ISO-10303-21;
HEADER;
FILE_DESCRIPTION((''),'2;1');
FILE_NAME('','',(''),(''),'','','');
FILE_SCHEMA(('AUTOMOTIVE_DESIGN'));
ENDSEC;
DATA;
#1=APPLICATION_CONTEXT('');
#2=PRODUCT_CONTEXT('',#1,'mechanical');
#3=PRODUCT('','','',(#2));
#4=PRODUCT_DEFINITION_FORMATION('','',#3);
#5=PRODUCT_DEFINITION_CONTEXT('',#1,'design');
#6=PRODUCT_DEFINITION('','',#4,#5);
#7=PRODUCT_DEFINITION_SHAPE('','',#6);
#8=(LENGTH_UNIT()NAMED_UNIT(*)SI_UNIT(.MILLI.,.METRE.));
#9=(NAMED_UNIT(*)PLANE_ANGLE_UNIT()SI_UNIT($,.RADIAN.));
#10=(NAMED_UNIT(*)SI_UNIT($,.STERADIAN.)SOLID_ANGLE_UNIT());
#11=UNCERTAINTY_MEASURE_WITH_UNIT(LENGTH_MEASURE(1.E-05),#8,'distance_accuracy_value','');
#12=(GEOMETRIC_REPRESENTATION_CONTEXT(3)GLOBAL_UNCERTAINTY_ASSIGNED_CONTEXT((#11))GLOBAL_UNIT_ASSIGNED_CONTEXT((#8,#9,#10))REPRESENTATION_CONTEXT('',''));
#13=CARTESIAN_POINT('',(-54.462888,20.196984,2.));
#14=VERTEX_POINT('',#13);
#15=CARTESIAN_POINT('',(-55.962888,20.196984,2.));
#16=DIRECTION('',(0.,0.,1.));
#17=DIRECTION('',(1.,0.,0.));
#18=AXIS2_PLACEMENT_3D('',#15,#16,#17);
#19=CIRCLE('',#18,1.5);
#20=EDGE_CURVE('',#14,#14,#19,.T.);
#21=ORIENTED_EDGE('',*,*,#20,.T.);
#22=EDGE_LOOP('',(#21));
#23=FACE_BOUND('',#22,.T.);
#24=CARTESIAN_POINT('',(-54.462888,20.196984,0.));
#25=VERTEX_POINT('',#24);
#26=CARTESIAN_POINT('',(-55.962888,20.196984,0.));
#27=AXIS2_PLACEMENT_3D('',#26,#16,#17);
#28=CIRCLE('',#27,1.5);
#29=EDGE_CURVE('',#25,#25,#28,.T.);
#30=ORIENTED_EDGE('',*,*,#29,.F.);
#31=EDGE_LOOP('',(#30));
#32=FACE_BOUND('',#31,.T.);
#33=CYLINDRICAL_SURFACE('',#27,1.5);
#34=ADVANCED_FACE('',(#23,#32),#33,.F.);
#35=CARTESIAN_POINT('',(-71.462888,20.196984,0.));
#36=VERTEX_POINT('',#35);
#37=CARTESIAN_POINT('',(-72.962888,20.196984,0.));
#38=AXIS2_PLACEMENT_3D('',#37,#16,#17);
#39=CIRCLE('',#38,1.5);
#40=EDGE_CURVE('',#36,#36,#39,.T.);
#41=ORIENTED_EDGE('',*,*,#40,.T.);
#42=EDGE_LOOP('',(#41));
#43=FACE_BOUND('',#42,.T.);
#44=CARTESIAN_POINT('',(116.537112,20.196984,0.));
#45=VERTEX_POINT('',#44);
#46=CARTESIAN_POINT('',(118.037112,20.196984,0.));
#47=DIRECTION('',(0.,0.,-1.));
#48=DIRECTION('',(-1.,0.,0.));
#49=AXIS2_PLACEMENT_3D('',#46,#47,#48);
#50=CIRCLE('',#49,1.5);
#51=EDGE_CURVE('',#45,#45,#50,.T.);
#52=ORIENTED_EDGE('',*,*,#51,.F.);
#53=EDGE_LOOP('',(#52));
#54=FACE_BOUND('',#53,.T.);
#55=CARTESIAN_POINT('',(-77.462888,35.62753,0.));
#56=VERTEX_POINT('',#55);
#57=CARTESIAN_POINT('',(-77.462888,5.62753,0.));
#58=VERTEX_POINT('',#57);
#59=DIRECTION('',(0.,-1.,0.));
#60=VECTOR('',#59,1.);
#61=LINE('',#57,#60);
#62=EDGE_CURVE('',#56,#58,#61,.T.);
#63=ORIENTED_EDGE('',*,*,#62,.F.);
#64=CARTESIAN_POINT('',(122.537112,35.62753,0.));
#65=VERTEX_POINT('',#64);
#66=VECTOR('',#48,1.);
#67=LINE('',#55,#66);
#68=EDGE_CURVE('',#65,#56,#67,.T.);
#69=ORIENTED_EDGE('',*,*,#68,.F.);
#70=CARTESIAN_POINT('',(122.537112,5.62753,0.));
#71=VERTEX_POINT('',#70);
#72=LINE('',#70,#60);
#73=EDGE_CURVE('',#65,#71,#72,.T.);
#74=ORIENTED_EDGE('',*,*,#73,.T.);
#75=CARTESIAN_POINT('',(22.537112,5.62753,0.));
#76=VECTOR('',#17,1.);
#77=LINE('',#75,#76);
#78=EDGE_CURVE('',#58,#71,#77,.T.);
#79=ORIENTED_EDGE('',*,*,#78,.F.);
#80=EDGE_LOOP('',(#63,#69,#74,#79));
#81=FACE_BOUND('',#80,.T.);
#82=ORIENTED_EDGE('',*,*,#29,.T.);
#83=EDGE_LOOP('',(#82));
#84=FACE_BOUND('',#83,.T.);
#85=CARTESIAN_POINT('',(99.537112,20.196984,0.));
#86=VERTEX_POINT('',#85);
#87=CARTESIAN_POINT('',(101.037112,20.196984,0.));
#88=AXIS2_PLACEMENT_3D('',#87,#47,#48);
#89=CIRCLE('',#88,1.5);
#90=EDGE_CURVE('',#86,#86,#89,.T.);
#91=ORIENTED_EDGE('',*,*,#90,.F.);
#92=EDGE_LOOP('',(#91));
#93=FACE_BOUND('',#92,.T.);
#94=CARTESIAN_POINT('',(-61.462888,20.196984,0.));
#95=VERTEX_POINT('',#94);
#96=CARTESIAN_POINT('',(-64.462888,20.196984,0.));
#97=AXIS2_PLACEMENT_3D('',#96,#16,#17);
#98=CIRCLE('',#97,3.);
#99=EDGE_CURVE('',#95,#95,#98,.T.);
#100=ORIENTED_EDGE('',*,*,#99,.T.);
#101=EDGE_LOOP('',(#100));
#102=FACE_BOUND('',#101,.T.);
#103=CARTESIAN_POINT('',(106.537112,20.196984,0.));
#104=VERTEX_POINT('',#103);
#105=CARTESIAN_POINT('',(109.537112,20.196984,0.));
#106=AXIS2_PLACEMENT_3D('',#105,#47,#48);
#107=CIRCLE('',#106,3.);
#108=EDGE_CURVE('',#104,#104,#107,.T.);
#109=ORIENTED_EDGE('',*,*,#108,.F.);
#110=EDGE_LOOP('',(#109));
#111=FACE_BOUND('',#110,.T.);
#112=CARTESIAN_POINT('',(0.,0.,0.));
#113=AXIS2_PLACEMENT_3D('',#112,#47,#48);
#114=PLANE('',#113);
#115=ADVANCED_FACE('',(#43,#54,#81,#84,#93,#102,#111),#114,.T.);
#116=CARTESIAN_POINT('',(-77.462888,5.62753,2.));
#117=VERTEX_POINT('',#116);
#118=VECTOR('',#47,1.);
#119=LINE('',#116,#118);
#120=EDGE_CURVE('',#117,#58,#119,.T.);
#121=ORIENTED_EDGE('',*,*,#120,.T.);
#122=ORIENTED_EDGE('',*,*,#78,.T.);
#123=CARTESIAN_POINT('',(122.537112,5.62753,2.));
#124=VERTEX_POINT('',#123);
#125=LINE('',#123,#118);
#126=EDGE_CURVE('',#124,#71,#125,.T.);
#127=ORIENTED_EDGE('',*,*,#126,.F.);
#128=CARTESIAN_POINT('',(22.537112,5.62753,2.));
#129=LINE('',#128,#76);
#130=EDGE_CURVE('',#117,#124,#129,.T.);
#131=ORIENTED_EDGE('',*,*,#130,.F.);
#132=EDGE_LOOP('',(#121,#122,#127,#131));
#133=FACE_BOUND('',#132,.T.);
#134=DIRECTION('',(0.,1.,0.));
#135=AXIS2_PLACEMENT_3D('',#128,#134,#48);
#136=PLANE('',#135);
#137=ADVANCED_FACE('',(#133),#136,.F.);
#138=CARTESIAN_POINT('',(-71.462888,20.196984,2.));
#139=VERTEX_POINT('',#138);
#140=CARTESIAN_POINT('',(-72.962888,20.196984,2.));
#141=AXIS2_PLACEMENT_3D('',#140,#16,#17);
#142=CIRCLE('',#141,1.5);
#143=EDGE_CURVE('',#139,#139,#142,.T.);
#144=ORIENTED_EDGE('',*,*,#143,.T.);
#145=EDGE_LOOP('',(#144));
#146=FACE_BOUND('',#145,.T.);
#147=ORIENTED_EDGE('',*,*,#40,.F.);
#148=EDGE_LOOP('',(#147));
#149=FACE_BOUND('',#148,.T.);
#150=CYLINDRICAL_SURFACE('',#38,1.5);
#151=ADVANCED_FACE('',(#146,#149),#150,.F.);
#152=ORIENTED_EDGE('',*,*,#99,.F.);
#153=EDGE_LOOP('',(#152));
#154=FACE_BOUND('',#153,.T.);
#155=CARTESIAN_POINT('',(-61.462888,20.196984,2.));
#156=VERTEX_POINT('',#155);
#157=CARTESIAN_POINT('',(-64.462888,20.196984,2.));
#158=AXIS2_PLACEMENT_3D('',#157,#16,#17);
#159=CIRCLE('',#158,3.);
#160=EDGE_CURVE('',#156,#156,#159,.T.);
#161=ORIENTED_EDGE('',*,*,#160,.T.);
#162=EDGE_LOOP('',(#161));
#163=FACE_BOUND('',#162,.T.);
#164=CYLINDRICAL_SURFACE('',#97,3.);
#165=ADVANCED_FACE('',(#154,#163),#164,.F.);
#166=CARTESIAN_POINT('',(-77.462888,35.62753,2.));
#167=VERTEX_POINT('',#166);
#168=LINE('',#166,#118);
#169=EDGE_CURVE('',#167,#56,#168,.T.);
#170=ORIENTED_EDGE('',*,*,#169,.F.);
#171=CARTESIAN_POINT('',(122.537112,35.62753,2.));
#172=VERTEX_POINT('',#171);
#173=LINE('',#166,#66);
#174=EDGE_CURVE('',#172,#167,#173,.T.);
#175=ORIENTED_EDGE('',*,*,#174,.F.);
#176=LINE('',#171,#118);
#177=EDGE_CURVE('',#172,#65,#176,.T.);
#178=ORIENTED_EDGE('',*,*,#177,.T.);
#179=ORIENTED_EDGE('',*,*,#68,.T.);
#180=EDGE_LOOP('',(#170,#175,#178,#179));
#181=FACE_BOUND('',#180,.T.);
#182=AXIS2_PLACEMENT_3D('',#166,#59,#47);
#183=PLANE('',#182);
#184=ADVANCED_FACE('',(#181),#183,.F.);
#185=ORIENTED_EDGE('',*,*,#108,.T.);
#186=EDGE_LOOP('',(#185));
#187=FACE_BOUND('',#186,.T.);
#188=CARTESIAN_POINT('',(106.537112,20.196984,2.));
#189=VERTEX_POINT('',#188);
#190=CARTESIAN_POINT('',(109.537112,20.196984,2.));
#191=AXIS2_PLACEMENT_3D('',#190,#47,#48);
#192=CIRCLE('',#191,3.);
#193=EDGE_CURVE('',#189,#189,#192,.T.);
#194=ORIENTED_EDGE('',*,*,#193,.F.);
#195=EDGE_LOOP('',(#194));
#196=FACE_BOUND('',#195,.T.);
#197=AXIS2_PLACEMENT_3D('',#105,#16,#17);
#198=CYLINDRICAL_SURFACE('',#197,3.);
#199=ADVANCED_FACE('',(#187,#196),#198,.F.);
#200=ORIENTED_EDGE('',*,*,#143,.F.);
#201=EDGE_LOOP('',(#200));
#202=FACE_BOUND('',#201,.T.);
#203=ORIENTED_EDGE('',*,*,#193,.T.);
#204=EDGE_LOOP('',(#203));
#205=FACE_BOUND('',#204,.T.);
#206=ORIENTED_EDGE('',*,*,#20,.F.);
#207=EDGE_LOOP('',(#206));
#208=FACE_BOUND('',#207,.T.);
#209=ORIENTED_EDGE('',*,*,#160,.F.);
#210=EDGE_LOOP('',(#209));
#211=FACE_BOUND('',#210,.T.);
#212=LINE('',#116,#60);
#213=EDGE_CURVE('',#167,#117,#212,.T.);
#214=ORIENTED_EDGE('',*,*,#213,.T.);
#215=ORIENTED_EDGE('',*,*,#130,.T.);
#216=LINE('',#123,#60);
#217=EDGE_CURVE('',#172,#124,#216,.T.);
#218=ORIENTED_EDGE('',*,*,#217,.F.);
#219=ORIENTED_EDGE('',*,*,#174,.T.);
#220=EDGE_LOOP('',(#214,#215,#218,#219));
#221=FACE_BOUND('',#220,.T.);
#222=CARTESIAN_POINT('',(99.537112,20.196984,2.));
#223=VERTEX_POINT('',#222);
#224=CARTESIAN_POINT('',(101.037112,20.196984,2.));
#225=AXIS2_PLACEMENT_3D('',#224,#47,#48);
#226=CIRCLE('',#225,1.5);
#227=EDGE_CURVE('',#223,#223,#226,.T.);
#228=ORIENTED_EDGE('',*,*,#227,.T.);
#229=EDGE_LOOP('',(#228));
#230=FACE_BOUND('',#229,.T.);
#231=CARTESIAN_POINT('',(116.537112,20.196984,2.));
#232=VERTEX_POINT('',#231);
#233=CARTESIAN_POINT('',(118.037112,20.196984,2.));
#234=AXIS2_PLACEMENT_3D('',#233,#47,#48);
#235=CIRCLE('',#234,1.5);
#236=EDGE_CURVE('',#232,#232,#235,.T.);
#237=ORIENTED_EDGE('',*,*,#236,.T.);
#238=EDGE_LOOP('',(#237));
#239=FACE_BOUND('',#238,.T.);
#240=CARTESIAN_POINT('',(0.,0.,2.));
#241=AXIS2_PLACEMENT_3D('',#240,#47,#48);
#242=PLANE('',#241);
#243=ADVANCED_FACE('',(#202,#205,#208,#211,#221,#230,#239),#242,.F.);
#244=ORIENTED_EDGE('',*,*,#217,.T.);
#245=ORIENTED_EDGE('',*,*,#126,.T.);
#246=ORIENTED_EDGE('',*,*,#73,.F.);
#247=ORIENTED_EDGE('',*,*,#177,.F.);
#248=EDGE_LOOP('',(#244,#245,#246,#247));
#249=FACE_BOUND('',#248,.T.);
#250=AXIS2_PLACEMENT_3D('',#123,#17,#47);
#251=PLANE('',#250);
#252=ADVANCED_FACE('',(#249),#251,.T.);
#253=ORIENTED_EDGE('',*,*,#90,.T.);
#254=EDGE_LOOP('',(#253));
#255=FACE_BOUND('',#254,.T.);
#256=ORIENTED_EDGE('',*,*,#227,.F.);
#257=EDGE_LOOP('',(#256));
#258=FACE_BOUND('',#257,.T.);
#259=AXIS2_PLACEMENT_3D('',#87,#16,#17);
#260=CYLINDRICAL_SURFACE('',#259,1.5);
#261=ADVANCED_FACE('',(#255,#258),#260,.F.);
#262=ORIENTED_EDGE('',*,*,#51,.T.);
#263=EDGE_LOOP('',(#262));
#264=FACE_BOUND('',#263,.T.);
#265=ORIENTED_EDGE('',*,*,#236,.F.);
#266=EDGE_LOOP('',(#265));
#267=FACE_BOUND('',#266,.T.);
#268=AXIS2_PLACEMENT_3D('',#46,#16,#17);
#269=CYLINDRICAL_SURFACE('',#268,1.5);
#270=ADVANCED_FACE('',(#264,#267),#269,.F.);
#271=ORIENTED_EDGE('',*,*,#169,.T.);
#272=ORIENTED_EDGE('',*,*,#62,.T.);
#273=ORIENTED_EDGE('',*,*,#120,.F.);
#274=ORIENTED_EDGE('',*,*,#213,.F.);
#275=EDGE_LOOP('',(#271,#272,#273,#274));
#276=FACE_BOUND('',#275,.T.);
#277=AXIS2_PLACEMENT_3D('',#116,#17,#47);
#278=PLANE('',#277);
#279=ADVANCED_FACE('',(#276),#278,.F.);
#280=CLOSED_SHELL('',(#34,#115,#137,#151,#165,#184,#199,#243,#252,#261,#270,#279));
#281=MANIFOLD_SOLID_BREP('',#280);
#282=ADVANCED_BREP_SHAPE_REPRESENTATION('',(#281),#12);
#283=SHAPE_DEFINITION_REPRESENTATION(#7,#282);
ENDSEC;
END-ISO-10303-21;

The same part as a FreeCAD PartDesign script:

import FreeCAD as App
import Part
import Sketcher

doc = App.newDocument("Part")
params = doc.addObject("Spreadsheet::Sheet", "Params")
for row, (alias, value) in enumerate([
    ("sketch1_width", "100 mm"),
    ("sketch1_height", "30 mm"),
    ("pad1_length", "2 mm"),
    ("sketch2_diameter", "6 mm"),
    ("sketch2_diameter2", "3 mm"),
    ("pocket1_length", "2 mm"),
], start=1):
    params.set(f"A{row}", alias)
    params.set(f"B{row}", "=" + value)
    params.setAlias(f"B{row}", alias)

body = doc.addObject("PartDesign::Body", "Body")

sketch1 = body.newObject("Sketcher::SketchObject", "Sketch")
sketch1.AttachmentSupport = (doc.getObject("XY_Plane"), [""])
sketch1.MapMode = "FlatFace"
sketch1.addGeometry(Part.LineSegment(App.Vector(-77, 36, 0), App.Vector(-77, 6, 0)), False)
sketch1.addGeometry(Part.LineSegment(App.Vector(-77, 6, 0), App.Vector(23, 6, 0)), False)
sketch1.addGeometry(Part.LineSegment(App.Vector(23, 6, 0), App.Vector(23, 36, 0)), False)
sketch1.addGeometry(Part.LineSegment(App.Vector(23, 36, 0), App.Vector(-77, 36, 0)), False)
sketch1.addConstraint(Sketcher.Constraint("Coincident", 0, 2, 1, 1))
sketch1.addConstraint(Sketcher.Constraint("Coincident", 1, 2, 2, 1))
sketch1.addConstraint(Sketcher.Constraint("Coincident", 2, 2, 3, 1))
sketch1.addConstraint(Sketcher.Constraint("Coincident", 3, 2, 0, 1))
sketch1.addConstraint(Sketcher.Constraint("Vertical", 0))
sketch1.addConstraint(Sketcher.Constraint("Horizontal", 1))
sketch1.addConstraint(Sketcher.Constraint("Vertical", 2))
sketch1.addConstraint(Sketcher.Constraint("Horizontal", 3))
sketch1.addConstraint(Sketcher.Constraint("DistanceX", 1, 1, 1, 2, 100.0))
sketch1.addConstraint(Sketcher.Constraint("DistanceY", 0, 2, 0, 1, 30.0))
sketch1.addConstraint(Sketcher.Constraint("DistanceY", -1, 1, 0, 2, 5.62753))
sketch1.addConstraint(Sketcher.Constraint("DistanceX", 0, 2, -1, 1, 77.462888))
sketch1.setExpression("Constraints[8]", "Params.sketch1_width")
sketch1.setExpression("Constraints[9]", "Params.sketch1_height")
pad1 = body.newObject("PartDesign::Pad", "Pad")
pad1.Profile = sketch1
pad1.setExpression("Length", "Params.pad1_length")

sketch2 = body.newObject("Sketcher::SketchObject", "Sketch001")
sketch2.AttachmentSupport = (doc.getObject("XY_Plane"), [""])
sketch2.MapMode = "FlatFace"
sketch2.AttachmentOffset = App.Placement(App.Vector(0, 0, 2), App.Rotation())
sketch2.addGeometry(Part.Circle(App.Vector(-64.5, 20.2, 0), App.Vector(0, 0, 1), 3), False)
sketch2.addGeometry(Part.Circle(App.Vector(-73, 20.2, 0), App.Vector(0, 0, 1), 1.5), False)
sketch2.addGeometry(Part.Circle(App.Vector(-56, 20.2, 0), App.Vector(0, 0, 1), 1.5), False)
sketch2.addConstraint(Sketcher.Constraint("Equal", 1, 2))
sketch2.addConstraint(Sketcher.Constraint("Horizontal", 0, 3, 1, 3))
sketch2.addConstraint(Sketcher.Constraint("Horizontal", 1, 3, 2, 3))
sketch2.addConstraint(Sketcher.Constraint("Diameter", 0, 6.0))
sketch2.addConstraint(Sketcher.Constraint("Diameter", 1, 3.0))
sketch2.addConstraint(Sketcher.Constraint("DistanceX", 1, 3, 2, 3, 17.0))
sketch2.addConstraint(Sketcher.Constraint("DistanceX", 1, 3, 0, 3, 8.5))
sketch2.addConstraint(Sketcher.Constraint("DistanceX", 0, 3, -1, 1, 64.462888))
sketch2.addConstraint(Sketcher.Constraint("DistanceY", -1, 1, 0, 3, 20.196984))
sketch2.setExpression("Constraints[3]", "Params.sketch2_diameter")
sketch2.setExpression("Constraints[4]", "Params.sketch2_diameter2")
pocket1 = body.newObject("PartDesign::Pocket", "Pocket")
pocket1.Profile = sketch2
pocket1.setExpression("Length", "Params.pocket1_length")
doc.recompute()

datumplane = body.newObject("PartDesign::Plane", "DatumPlane")
datumplane.AttachmentSupport = (doc.getObject("YZ_Plane"), [""])
datumplane.MapMode = "FlatFace"
datumplane.AttachmentOffset = App.Placement(App.Vector(0, 0, 22.537112), App.Rotation())
mirrored = body.newObject("PartDesign::Mirrored", "Mirrored")
mirrored.Originals = [pad1, pocket1]
mirrored.MirrorPlane = (datumplane, [""])
body.Tip = mirrored

doc.recompute()
